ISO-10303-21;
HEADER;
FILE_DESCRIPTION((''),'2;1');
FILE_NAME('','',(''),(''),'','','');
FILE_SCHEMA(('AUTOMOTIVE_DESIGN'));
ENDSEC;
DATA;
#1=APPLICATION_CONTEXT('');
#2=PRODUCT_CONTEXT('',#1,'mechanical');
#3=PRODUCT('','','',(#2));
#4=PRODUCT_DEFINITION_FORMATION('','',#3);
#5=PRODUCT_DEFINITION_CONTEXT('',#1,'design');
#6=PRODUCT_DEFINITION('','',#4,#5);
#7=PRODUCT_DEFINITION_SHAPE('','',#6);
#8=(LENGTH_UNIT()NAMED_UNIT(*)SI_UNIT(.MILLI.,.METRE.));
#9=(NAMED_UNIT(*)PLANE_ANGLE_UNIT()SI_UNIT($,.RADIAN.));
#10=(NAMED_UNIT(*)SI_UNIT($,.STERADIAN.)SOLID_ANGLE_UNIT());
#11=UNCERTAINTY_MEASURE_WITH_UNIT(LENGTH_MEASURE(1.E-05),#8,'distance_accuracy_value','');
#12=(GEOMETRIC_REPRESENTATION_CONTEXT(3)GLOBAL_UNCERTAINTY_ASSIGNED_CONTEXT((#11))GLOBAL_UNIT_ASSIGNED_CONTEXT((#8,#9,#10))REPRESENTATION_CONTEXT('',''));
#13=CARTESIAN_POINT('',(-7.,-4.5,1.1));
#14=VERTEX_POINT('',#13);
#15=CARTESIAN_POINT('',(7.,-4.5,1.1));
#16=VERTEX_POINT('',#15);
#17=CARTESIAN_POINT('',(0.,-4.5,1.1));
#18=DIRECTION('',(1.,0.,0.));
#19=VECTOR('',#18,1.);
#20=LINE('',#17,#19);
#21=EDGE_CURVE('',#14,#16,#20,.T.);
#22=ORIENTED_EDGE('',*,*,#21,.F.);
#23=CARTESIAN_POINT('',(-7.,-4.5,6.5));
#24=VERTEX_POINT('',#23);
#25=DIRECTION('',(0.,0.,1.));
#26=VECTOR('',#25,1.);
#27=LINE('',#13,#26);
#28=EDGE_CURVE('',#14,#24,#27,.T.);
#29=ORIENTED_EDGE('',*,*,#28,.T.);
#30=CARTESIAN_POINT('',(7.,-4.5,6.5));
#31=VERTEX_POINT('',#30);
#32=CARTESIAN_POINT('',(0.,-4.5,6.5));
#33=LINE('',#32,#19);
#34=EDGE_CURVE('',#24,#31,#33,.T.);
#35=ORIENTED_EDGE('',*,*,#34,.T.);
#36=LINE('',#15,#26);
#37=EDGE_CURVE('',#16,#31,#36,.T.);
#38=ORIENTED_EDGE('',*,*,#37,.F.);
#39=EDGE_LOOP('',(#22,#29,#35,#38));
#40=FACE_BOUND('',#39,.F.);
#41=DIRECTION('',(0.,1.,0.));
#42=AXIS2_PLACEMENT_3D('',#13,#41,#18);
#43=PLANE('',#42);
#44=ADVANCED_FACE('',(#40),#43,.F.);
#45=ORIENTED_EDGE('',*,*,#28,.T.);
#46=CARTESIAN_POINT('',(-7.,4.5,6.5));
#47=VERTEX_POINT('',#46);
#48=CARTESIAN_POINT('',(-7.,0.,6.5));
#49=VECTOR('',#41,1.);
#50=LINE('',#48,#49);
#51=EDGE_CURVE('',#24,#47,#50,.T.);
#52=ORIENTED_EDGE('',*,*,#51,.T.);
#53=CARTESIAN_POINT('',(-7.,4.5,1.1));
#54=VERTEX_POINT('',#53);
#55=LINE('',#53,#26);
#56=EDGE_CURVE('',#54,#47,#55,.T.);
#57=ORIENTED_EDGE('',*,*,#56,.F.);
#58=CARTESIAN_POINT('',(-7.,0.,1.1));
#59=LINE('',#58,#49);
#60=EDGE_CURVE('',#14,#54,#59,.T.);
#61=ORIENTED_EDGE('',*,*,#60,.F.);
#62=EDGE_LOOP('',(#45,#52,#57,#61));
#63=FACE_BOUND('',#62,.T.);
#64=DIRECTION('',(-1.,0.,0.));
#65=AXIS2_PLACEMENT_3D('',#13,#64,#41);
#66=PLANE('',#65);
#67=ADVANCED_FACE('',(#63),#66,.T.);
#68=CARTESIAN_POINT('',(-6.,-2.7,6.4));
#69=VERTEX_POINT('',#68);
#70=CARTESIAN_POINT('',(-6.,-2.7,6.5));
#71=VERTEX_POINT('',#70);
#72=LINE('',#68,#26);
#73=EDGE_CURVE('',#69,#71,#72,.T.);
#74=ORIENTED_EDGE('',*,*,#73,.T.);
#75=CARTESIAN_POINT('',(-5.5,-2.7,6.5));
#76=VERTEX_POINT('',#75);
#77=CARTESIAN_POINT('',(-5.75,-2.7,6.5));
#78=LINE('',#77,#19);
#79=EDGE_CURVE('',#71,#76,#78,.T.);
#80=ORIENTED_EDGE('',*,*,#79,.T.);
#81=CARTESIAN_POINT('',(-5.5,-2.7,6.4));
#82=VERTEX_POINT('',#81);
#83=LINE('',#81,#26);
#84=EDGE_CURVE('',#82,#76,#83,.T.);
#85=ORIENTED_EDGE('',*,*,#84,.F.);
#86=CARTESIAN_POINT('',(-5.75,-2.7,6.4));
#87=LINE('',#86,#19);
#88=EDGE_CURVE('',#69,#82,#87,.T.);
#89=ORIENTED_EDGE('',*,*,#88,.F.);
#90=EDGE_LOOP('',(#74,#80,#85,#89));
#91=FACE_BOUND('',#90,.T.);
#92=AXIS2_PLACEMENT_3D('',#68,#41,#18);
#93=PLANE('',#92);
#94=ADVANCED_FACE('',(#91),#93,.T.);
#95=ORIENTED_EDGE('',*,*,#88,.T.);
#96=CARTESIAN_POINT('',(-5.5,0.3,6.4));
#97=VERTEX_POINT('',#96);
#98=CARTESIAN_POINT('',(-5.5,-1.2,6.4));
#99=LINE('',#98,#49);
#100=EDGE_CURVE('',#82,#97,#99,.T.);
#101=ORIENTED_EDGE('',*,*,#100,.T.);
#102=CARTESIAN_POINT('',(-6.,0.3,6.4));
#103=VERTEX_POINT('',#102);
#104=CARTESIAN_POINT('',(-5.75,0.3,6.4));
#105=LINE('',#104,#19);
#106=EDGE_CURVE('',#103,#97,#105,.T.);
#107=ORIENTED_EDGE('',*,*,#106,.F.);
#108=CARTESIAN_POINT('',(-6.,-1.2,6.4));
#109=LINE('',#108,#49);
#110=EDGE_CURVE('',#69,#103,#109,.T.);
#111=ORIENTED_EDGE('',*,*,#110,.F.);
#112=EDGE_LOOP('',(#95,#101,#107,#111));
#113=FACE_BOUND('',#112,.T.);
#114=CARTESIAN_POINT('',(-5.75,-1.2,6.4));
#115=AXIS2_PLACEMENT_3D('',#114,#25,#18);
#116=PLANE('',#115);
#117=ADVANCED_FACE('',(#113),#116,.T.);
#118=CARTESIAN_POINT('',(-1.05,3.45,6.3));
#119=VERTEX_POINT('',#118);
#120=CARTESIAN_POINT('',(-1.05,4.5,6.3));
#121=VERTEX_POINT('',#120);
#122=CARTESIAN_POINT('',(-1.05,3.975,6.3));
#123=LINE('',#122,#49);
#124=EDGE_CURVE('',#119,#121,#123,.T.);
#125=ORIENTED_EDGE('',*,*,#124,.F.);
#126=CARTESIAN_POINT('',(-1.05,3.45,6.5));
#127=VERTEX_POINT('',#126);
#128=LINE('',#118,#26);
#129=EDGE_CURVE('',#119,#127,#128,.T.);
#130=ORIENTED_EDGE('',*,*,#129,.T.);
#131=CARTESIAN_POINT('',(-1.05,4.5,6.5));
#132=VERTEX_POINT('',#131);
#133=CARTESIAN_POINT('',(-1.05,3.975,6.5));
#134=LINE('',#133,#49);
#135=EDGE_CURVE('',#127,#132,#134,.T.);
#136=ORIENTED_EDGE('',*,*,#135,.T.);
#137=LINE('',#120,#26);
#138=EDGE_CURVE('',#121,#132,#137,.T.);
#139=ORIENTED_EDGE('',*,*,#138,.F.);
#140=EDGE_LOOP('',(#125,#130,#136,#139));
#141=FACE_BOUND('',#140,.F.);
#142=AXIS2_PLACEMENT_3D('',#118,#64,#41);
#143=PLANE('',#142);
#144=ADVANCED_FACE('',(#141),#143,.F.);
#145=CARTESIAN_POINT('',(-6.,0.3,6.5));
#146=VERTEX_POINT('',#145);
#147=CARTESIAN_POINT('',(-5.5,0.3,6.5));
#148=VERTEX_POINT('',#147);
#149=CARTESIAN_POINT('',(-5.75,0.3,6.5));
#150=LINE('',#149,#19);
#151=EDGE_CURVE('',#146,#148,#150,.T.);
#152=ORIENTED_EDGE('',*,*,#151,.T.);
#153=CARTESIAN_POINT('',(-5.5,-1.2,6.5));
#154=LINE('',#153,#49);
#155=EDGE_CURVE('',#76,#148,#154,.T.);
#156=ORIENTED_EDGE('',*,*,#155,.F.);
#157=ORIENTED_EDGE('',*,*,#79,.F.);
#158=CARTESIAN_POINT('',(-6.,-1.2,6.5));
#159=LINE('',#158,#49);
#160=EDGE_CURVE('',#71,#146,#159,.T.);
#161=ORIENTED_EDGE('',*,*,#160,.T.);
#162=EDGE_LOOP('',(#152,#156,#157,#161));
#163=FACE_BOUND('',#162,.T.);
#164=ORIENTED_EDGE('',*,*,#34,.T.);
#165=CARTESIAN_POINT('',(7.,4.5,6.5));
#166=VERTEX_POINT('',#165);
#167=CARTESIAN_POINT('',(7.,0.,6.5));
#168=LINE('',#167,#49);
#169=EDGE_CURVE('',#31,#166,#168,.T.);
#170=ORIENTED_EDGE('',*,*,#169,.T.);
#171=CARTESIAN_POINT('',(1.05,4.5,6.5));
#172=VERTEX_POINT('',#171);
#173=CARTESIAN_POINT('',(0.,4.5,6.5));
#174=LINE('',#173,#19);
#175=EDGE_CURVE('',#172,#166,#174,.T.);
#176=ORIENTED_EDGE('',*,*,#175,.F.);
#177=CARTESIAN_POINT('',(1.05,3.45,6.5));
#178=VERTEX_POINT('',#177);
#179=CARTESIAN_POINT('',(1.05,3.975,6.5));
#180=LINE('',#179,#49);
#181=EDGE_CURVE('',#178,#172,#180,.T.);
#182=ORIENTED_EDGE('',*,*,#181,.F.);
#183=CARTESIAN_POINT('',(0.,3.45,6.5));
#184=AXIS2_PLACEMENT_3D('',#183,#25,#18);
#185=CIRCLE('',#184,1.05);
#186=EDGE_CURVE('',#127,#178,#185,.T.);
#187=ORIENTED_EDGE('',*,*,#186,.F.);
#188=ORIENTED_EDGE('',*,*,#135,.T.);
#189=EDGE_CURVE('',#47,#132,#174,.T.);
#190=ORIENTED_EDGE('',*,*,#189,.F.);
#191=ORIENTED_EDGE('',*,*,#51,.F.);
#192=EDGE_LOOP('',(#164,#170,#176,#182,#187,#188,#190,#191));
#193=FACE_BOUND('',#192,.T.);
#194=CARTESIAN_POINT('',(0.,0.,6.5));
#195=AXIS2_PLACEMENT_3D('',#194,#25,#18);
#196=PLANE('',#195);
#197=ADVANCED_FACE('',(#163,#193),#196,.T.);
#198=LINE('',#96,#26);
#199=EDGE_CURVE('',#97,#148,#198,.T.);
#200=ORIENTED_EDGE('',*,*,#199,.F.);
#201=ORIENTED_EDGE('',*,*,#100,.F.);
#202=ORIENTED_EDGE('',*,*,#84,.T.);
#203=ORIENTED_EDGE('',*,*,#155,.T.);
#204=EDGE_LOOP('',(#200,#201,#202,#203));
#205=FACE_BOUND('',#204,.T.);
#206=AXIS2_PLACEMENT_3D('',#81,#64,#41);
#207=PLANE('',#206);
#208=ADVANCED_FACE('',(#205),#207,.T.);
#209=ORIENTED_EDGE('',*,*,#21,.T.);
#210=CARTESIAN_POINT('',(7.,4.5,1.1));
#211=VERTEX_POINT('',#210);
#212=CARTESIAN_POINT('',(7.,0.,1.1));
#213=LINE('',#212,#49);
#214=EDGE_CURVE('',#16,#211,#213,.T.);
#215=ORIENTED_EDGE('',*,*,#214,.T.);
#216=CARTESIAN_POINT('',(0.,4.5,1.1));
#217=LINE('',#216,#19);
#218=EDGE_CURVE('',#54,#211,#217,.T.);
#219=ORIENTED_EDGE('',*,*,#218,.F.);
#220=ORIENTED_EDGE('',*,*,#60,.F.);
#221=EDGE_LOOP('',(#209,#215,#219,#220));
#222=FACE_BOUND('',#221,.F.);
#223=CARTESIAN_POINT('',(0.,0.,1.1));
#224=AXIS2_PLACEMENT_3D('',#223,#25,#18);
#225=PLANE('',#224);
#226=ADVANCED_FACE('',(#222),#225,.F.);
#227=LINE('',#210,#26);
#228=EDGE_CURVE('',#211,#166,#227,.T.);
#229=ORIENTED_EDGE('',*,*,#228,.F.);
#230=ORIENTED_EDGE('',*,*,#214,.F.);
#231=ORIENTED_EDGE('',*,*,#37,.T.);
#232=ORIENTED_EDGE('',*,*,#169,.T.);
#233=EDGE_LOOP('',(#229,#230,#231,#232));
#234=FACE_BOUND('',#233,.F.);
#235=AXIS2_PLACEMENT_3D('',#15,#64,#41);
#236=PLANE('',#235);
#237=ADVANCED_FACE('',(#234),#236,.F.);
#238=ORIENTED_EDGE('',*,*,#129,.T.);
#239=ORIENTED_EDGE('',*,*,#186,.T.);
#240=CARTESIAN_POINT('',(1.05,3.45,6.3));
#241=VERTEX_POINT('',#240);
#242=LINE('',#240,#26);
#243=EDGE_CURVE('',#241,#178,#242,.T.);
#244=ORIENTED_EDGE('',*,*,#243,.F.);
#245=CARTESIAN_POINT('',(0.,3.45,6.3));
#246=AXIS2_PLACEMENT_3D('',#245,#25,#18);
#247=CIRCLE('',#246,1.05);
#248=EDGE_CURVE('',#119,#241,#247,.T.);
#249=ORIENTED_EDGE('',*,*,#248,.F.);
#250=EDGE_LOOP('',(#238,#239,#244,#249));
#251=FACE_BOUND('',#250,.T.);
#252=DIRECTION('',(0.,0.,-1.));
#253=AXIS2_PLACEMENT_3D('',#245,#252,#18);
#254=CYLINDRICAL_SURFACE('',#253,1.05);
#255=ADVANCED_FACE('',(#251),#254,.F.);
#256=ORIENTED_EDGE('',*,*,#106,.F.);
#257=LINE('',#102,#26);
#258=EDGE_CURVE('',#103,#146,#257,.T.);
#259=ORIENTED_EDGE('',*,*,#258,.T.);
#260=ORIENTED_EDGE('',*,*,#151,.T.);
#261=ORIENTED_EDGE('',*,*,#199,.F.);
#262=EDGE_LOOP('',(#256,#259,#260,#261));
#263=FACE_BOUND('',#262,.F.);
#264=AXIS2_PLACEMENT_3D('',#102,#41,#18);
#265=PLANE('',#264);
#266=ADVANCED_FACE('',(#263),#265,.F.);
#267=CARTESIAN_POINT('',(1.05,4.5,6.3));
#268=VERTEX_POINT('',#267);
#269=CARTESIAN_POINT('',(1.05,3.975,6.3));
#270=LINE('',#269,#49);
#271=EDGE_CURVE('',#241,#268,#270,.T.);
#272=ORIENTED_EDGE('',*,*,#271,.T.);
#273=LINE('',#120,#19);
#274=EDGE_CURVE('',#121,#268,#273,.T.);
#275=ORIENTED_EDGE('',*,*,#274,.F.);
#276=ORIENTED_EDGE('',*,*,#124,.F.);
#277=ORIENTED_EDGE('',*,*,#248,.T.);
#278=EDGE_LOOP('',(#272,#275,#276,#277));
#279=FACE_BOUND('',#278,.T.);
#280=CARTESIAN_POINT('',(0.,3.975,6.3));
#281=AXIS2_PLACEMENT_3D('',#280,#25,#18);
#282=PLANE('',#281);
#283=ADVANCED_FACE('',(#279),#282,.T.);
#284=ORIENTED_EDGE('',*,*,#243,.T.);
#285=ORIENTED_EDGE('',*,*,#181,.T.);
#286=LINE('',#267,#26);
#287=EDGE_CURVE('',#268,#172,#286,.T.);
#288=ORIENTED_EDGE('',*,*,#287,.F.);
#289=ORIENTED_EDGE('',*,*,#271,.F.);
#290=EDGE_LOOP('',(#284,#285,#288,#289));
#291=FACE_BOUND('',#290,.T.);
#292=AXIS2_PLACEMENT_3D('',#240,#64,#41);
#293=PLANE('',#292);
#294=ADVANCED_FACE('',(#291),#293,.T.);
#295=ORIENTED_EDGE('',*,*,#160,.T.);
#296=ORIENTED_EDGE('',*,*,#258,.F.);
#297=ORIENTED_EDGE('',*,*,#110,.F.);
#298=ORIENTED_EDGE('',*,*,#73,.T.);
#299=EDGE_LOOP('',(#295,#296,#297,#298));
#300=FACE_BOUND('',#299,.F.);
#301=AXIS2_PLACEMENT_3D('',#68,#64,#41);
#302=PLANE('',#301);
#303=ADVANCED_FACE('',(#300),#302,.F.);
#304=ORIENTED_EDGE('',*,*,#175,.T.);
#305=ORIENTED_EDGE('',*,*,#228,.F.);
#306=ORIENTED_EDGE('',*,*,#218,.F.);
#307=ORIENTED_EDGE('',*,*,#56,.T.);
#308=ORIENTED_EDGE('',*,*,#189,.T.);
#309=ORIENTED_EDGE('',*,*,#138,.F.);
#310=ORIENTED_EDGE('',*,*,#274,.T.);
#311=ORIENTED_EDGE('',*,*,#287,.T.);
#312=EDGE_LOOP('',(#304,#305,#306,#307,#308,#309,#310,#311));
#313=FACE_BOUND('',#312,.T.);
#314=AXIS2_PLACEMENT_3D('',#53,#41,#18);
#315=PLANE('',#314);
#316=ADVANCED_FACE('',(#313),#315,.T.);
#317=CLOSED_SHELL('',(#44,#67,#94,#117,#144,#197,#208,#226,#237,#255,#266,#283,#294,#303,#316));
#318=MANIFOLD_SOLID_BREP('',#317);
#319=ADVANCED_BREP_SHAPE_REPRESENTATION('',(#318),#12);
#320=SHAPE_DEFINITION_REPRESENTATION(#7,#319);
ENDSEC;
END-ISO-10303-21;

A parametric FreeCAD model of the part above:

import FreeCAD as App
import Part
import Sketcher
from FreeCAD import Vector

doc = App.newDocument("Part")
body = doc.addObject("PartDesign::Body", "Body")

sketch1 = body.newObject("Sketcher::SketchObject", "Sketch")
sketch1.AttachmentSupport = (doc.getObject("XY_Plane"), [""])
sketch1.MapMode = "FlatFace"
sketch1.AttachmentOffset = App.Placement(Vector(0, 0, 6.3), App.Rotation())
sketch1.addGeometry(Part.Circle(Vector(0, 3.45, 0), Vector(0, 0, 1), 1.05), False)
sketch1.addConstraint([
    Sketcher.Constraint("PointOnObject", 0, 3, -2),
    Sketcher.Constraint("Diameter", 0, 2.1),
    Sketcher.Constraint("DistanceY", -1, 1, 0, 3, 3.45),
])
pad1 = body.newObject("PartDesign::Pad", "Pad")
pad1.Profile = sketch1
pad1.Length = 0.2
body2 = doc.addObject("PartDesign::Body", "Body001")

sketch2 = body2.newObject("Sketcher::SketchObject", "Sketch001")
sketch2.AttachmentSupport = (doc.getObject("XY_Plane001"), [""])
sketch2.MapMode = "FlatFace"
sketch2.AttachmentOffset = App.Placement(Vector(0, 0, 6.3), App.Rotation())
sketch2.addGeometry([
    Part.LineSegment(Vector(-1.05, 4.5, 0), Vector(-1.05, 3.45, 0)),
    Part.LineSegment(Vector(-1.05, 3.45, 0), Vector(1.05, 3.45, 0)),
    Part.LineSegment(Vector(1.05, 3.45, 0), Vector(1.05, 4.5, 0)),
    Part.LineSegment(Vector(1.05, 4.5, 0), Vector(-1.05, 4.5, 0)),
], False)
sketch2.addConstraint([
    Sketcher.Constraint("Coincident", 0, 2, 1, 1),
    Sketcher.Constraint("Coincident", 1, 2, 2, 1),
    Sketcher.Constraint("Coincident", 2, 2, 3, 1),
    Sketcher.Constraint("Coincident", 3, 2, 0, 1),
    Sketcher.Constraint("Vertical", 0),
    Sketcher.Constraint("Horizontal", 1),
    Sketcher.Constraint("Vertical", 2),
    Sketcher.Constraint("Horizontal", 3),
    Sketcher.Constraint("DistanceX", 1, 1, 1, 2, 2.1),
    Sketcher.Constraint("DistanceY", 0, 2, 0, 1, 1.05),
    Sketcher.Constraint("DistanceY", -1, 1, 2, 2, 4.5),
    Sketcher.Constraint("DistanceX", 0, 2, -1, 1, 1.05),
])
pad2 = body2.newObject("PartDesign::Pad", "Pad001")
pad2.Profile = sketch2
pad2.Length = 0.2
doc.recompute()

boolean = body2.newObject("PartDesign::Boolean", "Boolean")
boolean.Type = "Fuse"
boolean.addObjects([body])
body3 = doc.addObject("PartDesign::Body", "Body002")

sketch3 = body3.newObject("Sketcher::SketchObject", "Sketch002")
sketch3.AttachmentSupport = (doc.getObject("XY_Plane002"), [""])
sketch3.MapMode = "FlatFace"
sketch3.AttachmentOffset = App.Placement(Vector(0, 0, 6.4), App.Rotation())
sketch3.addGeometry([
    Part.LineSegment(Vector(-6, 0.3, 0), Vector(-6, -2.7, 0)),
    Part.LineSegment(Vector(-6, -2.7, 0), Vector(-5.5, -2.7, 0)),
    Part.LineSegment(Vector(-5.5, -2.7, 0), Vector(-5.5, 0.3, 0)),
    Part.LineSegment(Vector(-5.5, 0.3, 0), Vector(-6, 0.3, 0)),
], False)
sketch3.addConstraint([
    Sketcher.Constraint("Coincident", 0, 2, 1, 1),
    Sketcher.Constraint("Coincident", 1, 2, 2, 1),
    Sketcher.Constraint("Coincident", 2, 2, 3, 1),
    Sketcher.Constraint("Coincident", 3, 2, 0, 1),
    Sketcher.Constraint("Vertical", 0),
    Sketcher.Constraint("Horizontal", 1),
    Sketcher.Constraint("Vertical", 2),
    Sketcher.Constraint("Horizontal", 3),
    Sketcher.Constraint("DistanceY", 0, 2, 0, 1, 3.0),
    Sketcher.Constraint("DistanceX", 1, 1, 1, 2, 0.5),
    Sketcher.Constraint("DistanceX", 0, 2, -1, 1, 6.0),
    Sketcher.Constraint("DistanceY", 0, 2, -1, 1, 2.7),
])
pad3 = body3.newObject("PartDesign::Pad", "Pad002")
pad3.Profile = sketch3
pad3.Length = 0.1
body4 = doc.addObject("PartDesign::Body", "Body003")

sketch4 = body4.newObject("Sketcher::SketchObject", "Sketch003")
sketch4.AttachmentSupport = (doc.getObject("XY_Plane003"), [""])
sketch4.MapMode = "FlatFace"
sketch4.AttachmentOffset = App.Placement(Vector(0, 0, 1.1), App.Rotation())
sketch4.addGeometry([
    Part.LineSegment(Vector(-7, 4.5, 0), Vector(-7, -4.5, 0)),
    Part.LineSegment(Vector(-7, -4.5, 0), Vector(7, -4.5, 0)),
    Part.LineSegment(Vector(7, -4.5, 0), Vector(7, 4.5, 0)),
    Part.LineSegment(Vector(7, 4.5, 0), Vector(-7, 4.5, 0)),
], False)
sketch4.addConstraint([
    Sketcher.Constraint("Coincident", 0, 2, 1, 1),
    Sketcher.Constraint("Coincident", 1, 2, 2, 1),
    Sketcher.Constraint("Coincident", 2, 2, 3, 1),
    Sketcher.Constraint("Coincident", 3, 2, 0, 1),
    Sketcher.Constraint("Vertical", 0),
    Sketcher.Constraint("Horizontal", 1),
    Sketcher.Constraint("Vertical", 2),
    Sketcher.Constraint("Horizontal", 3),
    Sketcher.Constraint("Symmetric", 0, 2, 2, 2, -1, 1),
    Sketcher.Constraint("DistanceX", 1, 1, 1, 2, 14.0),
    Sketcher.Constraint("DistanceY", 0, 2, 0, 1, 9.0),
])
pad4 = body4.newObject("PartDesign::Pad", "Pad003")
pad4.Profile = sketch4
pad4.Length = 5.4
doc.recompute()

boolean2 = body4.newObject("PartDesign::Boolean", "Boolean001")
boolean2.Type = "Cut"
boolean2.addObjects([body3])
doc.recompute()

boolean3 = body4.newObject("PartDesign::Boolean", "Boolean002")
boolean3.Type = "Cut"
boolean3.addObjects([body2])

doc.recompute()
